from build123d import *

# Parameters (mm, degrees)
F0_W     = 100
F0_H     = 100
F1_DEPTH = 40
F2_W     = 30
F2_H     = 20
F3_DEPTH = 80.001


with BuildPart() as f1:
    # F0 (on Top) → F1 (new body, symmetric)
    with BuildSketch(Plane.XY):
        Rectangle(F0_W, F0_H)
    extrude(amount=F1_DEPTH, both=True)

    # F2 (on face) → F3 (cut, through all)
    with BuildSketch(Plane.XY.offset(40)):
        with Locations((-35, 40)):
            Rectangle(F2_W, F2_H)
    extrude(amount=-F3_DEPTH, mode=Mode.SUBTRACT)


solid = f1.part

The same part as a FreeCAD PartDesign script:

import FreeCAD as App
import Part
import Sketcher

V = App.Vector
Q = App.Units.Quantity

doc = App.newDocument("Part")
body = doc.addObject("PartDesign::Body", "Body")

sketch1 = body.newObject("Sketcher::SketchObject", "Sketch")
sketch1.AttachmentSupport = (doc.getObject("XY_Plane"), [""])
sketch1.MapMode = "FlatFace"
sketch1.addGeometry(Part.LineSegment(V(-50, 50, 0), V(-50, -50, 0)), False)
sketch1.addGeometry(Part.LineSegment(V(-50, -50, 0), V(50, -50, 0)), False)
sketch1.addGeometry(Part.LineSegment(V(50, -50, 0), V(50, 50, 0)), False)
sketch1.addGeometry(Part.LineSegment(V(50, 50, 0), V(-50, 50, 0)), False)
sketch1.addConstraint(Sketcher.Constraint("Coincident", 0, 2, 1, 1))
sketch1.addConstraint(Sketcher.Constraint("Coincident", 1, 2, 2, 1))
sketch1.addConstraint(Sketcher.Constraint("Coincident", 2, 2, 3, 1))
sketch1.addConstraint(Sketcher.Constraint("Coincident", 3, 2, 0, 1))
sketch1.addConstraint(Sketcher.Constraint("Vertical", 0))
sketch1.addConstraint(Sketcher.Constraint("Horizontal", 1))
sketch1.addConstraint(Sketcher.Constraint("Vertical", 2))
sketch1.addConstraint(Sketcher.Constraint("Horizontal", 3))
sketch1.addConstraint(Sketcher.Constraint("Symmetric", 0, 2, 2, 2, -1, 1))
sketch1.addConstraint(Sketcher.Constraint("Equal", 3, 0))
sketch1.addConstraint(Sketcher.Constraint("DistanceX", 1, 1, 1, 2, Q("100 mm")))
pad1 = body.newObject("PartDesign::Pad", "Pad")
pad1.Profile = sketch1
pad1.Length = 80
pad1.Midplane = True

sketch2 = body.newObject("Sketcher::SketchObject", "Sketch001")
sketch2.AttachmentSupport = (doc.getObject("XY_Plane"), [""])
sketch2.MapMode = "FlatFace"
sketch2.AttachmentOffset = App.Placement(V(0, 0, 40), App.Rotation())
sketch2.addGeometry(Part.LineSegment(V(-50, 50, 0), V(-50, 30, 0)), False)
sketch2.addGeometry(Part.LineSegment(V(-50, 30, 0), V(-20, 30, 0)), False)
sketch2.addGeometry(Part.LineSegment(V(-20, 30, 0), V(-20, 50, 0)), False)
sketch2.addGeometry(Part.LineSegment(V(-20, 50, 0), V(-50, 50, 0)), False)
sketch2.addConstraint(Sketcher.Constraint("Coincident", 0, 2, 1, 1))
sketch2.addConstraint(Sketcher.Constraint("Coincident", 1, 2, 2, 1))
sketch2.addConstraint(Sketcher.Constraint("Coincident", 2, 2, 3, 1))
sketch2.addConstraint(Sketcher.Constraint("Coincident", 3, 2, 0, 1))
sketch2.addConstraint(Sketcher.Constraint("Vertical", 0))
sketch2.addConstraint(Sketcher.Constraint("Horizontal", 1))
sketch2.addConstraint(Sketcher.Constraint("Vertical", 2))
sketch2.addConstraint(Sketcher.Constraint("Horizontal", 3))
sketch2.addConstraint(Sketcher.Constraint("DistanceX", 1, 1, 1, 2, Q("30 mm")))
sketch2.addConstraint(Sketcher.Constraint("DistanceY", 0, 2, 0, 1, Q("20 mm")))
sketch2.addConstraint(Sketcher.Constraint("DistanceX", 0, 2, -1, 1, Q("50 mm")))
sketch2.addConstraint(Sketcher.Constraint("DistanceY", -1, 1, 0, 2, Q("30 mm")))
pocket1 = body.newObject("PartDesign::Pocket", "Pocket")
pocket1.Profile = sketch2
pocket1.Type = "ThroughAll"

doc.recompute()
